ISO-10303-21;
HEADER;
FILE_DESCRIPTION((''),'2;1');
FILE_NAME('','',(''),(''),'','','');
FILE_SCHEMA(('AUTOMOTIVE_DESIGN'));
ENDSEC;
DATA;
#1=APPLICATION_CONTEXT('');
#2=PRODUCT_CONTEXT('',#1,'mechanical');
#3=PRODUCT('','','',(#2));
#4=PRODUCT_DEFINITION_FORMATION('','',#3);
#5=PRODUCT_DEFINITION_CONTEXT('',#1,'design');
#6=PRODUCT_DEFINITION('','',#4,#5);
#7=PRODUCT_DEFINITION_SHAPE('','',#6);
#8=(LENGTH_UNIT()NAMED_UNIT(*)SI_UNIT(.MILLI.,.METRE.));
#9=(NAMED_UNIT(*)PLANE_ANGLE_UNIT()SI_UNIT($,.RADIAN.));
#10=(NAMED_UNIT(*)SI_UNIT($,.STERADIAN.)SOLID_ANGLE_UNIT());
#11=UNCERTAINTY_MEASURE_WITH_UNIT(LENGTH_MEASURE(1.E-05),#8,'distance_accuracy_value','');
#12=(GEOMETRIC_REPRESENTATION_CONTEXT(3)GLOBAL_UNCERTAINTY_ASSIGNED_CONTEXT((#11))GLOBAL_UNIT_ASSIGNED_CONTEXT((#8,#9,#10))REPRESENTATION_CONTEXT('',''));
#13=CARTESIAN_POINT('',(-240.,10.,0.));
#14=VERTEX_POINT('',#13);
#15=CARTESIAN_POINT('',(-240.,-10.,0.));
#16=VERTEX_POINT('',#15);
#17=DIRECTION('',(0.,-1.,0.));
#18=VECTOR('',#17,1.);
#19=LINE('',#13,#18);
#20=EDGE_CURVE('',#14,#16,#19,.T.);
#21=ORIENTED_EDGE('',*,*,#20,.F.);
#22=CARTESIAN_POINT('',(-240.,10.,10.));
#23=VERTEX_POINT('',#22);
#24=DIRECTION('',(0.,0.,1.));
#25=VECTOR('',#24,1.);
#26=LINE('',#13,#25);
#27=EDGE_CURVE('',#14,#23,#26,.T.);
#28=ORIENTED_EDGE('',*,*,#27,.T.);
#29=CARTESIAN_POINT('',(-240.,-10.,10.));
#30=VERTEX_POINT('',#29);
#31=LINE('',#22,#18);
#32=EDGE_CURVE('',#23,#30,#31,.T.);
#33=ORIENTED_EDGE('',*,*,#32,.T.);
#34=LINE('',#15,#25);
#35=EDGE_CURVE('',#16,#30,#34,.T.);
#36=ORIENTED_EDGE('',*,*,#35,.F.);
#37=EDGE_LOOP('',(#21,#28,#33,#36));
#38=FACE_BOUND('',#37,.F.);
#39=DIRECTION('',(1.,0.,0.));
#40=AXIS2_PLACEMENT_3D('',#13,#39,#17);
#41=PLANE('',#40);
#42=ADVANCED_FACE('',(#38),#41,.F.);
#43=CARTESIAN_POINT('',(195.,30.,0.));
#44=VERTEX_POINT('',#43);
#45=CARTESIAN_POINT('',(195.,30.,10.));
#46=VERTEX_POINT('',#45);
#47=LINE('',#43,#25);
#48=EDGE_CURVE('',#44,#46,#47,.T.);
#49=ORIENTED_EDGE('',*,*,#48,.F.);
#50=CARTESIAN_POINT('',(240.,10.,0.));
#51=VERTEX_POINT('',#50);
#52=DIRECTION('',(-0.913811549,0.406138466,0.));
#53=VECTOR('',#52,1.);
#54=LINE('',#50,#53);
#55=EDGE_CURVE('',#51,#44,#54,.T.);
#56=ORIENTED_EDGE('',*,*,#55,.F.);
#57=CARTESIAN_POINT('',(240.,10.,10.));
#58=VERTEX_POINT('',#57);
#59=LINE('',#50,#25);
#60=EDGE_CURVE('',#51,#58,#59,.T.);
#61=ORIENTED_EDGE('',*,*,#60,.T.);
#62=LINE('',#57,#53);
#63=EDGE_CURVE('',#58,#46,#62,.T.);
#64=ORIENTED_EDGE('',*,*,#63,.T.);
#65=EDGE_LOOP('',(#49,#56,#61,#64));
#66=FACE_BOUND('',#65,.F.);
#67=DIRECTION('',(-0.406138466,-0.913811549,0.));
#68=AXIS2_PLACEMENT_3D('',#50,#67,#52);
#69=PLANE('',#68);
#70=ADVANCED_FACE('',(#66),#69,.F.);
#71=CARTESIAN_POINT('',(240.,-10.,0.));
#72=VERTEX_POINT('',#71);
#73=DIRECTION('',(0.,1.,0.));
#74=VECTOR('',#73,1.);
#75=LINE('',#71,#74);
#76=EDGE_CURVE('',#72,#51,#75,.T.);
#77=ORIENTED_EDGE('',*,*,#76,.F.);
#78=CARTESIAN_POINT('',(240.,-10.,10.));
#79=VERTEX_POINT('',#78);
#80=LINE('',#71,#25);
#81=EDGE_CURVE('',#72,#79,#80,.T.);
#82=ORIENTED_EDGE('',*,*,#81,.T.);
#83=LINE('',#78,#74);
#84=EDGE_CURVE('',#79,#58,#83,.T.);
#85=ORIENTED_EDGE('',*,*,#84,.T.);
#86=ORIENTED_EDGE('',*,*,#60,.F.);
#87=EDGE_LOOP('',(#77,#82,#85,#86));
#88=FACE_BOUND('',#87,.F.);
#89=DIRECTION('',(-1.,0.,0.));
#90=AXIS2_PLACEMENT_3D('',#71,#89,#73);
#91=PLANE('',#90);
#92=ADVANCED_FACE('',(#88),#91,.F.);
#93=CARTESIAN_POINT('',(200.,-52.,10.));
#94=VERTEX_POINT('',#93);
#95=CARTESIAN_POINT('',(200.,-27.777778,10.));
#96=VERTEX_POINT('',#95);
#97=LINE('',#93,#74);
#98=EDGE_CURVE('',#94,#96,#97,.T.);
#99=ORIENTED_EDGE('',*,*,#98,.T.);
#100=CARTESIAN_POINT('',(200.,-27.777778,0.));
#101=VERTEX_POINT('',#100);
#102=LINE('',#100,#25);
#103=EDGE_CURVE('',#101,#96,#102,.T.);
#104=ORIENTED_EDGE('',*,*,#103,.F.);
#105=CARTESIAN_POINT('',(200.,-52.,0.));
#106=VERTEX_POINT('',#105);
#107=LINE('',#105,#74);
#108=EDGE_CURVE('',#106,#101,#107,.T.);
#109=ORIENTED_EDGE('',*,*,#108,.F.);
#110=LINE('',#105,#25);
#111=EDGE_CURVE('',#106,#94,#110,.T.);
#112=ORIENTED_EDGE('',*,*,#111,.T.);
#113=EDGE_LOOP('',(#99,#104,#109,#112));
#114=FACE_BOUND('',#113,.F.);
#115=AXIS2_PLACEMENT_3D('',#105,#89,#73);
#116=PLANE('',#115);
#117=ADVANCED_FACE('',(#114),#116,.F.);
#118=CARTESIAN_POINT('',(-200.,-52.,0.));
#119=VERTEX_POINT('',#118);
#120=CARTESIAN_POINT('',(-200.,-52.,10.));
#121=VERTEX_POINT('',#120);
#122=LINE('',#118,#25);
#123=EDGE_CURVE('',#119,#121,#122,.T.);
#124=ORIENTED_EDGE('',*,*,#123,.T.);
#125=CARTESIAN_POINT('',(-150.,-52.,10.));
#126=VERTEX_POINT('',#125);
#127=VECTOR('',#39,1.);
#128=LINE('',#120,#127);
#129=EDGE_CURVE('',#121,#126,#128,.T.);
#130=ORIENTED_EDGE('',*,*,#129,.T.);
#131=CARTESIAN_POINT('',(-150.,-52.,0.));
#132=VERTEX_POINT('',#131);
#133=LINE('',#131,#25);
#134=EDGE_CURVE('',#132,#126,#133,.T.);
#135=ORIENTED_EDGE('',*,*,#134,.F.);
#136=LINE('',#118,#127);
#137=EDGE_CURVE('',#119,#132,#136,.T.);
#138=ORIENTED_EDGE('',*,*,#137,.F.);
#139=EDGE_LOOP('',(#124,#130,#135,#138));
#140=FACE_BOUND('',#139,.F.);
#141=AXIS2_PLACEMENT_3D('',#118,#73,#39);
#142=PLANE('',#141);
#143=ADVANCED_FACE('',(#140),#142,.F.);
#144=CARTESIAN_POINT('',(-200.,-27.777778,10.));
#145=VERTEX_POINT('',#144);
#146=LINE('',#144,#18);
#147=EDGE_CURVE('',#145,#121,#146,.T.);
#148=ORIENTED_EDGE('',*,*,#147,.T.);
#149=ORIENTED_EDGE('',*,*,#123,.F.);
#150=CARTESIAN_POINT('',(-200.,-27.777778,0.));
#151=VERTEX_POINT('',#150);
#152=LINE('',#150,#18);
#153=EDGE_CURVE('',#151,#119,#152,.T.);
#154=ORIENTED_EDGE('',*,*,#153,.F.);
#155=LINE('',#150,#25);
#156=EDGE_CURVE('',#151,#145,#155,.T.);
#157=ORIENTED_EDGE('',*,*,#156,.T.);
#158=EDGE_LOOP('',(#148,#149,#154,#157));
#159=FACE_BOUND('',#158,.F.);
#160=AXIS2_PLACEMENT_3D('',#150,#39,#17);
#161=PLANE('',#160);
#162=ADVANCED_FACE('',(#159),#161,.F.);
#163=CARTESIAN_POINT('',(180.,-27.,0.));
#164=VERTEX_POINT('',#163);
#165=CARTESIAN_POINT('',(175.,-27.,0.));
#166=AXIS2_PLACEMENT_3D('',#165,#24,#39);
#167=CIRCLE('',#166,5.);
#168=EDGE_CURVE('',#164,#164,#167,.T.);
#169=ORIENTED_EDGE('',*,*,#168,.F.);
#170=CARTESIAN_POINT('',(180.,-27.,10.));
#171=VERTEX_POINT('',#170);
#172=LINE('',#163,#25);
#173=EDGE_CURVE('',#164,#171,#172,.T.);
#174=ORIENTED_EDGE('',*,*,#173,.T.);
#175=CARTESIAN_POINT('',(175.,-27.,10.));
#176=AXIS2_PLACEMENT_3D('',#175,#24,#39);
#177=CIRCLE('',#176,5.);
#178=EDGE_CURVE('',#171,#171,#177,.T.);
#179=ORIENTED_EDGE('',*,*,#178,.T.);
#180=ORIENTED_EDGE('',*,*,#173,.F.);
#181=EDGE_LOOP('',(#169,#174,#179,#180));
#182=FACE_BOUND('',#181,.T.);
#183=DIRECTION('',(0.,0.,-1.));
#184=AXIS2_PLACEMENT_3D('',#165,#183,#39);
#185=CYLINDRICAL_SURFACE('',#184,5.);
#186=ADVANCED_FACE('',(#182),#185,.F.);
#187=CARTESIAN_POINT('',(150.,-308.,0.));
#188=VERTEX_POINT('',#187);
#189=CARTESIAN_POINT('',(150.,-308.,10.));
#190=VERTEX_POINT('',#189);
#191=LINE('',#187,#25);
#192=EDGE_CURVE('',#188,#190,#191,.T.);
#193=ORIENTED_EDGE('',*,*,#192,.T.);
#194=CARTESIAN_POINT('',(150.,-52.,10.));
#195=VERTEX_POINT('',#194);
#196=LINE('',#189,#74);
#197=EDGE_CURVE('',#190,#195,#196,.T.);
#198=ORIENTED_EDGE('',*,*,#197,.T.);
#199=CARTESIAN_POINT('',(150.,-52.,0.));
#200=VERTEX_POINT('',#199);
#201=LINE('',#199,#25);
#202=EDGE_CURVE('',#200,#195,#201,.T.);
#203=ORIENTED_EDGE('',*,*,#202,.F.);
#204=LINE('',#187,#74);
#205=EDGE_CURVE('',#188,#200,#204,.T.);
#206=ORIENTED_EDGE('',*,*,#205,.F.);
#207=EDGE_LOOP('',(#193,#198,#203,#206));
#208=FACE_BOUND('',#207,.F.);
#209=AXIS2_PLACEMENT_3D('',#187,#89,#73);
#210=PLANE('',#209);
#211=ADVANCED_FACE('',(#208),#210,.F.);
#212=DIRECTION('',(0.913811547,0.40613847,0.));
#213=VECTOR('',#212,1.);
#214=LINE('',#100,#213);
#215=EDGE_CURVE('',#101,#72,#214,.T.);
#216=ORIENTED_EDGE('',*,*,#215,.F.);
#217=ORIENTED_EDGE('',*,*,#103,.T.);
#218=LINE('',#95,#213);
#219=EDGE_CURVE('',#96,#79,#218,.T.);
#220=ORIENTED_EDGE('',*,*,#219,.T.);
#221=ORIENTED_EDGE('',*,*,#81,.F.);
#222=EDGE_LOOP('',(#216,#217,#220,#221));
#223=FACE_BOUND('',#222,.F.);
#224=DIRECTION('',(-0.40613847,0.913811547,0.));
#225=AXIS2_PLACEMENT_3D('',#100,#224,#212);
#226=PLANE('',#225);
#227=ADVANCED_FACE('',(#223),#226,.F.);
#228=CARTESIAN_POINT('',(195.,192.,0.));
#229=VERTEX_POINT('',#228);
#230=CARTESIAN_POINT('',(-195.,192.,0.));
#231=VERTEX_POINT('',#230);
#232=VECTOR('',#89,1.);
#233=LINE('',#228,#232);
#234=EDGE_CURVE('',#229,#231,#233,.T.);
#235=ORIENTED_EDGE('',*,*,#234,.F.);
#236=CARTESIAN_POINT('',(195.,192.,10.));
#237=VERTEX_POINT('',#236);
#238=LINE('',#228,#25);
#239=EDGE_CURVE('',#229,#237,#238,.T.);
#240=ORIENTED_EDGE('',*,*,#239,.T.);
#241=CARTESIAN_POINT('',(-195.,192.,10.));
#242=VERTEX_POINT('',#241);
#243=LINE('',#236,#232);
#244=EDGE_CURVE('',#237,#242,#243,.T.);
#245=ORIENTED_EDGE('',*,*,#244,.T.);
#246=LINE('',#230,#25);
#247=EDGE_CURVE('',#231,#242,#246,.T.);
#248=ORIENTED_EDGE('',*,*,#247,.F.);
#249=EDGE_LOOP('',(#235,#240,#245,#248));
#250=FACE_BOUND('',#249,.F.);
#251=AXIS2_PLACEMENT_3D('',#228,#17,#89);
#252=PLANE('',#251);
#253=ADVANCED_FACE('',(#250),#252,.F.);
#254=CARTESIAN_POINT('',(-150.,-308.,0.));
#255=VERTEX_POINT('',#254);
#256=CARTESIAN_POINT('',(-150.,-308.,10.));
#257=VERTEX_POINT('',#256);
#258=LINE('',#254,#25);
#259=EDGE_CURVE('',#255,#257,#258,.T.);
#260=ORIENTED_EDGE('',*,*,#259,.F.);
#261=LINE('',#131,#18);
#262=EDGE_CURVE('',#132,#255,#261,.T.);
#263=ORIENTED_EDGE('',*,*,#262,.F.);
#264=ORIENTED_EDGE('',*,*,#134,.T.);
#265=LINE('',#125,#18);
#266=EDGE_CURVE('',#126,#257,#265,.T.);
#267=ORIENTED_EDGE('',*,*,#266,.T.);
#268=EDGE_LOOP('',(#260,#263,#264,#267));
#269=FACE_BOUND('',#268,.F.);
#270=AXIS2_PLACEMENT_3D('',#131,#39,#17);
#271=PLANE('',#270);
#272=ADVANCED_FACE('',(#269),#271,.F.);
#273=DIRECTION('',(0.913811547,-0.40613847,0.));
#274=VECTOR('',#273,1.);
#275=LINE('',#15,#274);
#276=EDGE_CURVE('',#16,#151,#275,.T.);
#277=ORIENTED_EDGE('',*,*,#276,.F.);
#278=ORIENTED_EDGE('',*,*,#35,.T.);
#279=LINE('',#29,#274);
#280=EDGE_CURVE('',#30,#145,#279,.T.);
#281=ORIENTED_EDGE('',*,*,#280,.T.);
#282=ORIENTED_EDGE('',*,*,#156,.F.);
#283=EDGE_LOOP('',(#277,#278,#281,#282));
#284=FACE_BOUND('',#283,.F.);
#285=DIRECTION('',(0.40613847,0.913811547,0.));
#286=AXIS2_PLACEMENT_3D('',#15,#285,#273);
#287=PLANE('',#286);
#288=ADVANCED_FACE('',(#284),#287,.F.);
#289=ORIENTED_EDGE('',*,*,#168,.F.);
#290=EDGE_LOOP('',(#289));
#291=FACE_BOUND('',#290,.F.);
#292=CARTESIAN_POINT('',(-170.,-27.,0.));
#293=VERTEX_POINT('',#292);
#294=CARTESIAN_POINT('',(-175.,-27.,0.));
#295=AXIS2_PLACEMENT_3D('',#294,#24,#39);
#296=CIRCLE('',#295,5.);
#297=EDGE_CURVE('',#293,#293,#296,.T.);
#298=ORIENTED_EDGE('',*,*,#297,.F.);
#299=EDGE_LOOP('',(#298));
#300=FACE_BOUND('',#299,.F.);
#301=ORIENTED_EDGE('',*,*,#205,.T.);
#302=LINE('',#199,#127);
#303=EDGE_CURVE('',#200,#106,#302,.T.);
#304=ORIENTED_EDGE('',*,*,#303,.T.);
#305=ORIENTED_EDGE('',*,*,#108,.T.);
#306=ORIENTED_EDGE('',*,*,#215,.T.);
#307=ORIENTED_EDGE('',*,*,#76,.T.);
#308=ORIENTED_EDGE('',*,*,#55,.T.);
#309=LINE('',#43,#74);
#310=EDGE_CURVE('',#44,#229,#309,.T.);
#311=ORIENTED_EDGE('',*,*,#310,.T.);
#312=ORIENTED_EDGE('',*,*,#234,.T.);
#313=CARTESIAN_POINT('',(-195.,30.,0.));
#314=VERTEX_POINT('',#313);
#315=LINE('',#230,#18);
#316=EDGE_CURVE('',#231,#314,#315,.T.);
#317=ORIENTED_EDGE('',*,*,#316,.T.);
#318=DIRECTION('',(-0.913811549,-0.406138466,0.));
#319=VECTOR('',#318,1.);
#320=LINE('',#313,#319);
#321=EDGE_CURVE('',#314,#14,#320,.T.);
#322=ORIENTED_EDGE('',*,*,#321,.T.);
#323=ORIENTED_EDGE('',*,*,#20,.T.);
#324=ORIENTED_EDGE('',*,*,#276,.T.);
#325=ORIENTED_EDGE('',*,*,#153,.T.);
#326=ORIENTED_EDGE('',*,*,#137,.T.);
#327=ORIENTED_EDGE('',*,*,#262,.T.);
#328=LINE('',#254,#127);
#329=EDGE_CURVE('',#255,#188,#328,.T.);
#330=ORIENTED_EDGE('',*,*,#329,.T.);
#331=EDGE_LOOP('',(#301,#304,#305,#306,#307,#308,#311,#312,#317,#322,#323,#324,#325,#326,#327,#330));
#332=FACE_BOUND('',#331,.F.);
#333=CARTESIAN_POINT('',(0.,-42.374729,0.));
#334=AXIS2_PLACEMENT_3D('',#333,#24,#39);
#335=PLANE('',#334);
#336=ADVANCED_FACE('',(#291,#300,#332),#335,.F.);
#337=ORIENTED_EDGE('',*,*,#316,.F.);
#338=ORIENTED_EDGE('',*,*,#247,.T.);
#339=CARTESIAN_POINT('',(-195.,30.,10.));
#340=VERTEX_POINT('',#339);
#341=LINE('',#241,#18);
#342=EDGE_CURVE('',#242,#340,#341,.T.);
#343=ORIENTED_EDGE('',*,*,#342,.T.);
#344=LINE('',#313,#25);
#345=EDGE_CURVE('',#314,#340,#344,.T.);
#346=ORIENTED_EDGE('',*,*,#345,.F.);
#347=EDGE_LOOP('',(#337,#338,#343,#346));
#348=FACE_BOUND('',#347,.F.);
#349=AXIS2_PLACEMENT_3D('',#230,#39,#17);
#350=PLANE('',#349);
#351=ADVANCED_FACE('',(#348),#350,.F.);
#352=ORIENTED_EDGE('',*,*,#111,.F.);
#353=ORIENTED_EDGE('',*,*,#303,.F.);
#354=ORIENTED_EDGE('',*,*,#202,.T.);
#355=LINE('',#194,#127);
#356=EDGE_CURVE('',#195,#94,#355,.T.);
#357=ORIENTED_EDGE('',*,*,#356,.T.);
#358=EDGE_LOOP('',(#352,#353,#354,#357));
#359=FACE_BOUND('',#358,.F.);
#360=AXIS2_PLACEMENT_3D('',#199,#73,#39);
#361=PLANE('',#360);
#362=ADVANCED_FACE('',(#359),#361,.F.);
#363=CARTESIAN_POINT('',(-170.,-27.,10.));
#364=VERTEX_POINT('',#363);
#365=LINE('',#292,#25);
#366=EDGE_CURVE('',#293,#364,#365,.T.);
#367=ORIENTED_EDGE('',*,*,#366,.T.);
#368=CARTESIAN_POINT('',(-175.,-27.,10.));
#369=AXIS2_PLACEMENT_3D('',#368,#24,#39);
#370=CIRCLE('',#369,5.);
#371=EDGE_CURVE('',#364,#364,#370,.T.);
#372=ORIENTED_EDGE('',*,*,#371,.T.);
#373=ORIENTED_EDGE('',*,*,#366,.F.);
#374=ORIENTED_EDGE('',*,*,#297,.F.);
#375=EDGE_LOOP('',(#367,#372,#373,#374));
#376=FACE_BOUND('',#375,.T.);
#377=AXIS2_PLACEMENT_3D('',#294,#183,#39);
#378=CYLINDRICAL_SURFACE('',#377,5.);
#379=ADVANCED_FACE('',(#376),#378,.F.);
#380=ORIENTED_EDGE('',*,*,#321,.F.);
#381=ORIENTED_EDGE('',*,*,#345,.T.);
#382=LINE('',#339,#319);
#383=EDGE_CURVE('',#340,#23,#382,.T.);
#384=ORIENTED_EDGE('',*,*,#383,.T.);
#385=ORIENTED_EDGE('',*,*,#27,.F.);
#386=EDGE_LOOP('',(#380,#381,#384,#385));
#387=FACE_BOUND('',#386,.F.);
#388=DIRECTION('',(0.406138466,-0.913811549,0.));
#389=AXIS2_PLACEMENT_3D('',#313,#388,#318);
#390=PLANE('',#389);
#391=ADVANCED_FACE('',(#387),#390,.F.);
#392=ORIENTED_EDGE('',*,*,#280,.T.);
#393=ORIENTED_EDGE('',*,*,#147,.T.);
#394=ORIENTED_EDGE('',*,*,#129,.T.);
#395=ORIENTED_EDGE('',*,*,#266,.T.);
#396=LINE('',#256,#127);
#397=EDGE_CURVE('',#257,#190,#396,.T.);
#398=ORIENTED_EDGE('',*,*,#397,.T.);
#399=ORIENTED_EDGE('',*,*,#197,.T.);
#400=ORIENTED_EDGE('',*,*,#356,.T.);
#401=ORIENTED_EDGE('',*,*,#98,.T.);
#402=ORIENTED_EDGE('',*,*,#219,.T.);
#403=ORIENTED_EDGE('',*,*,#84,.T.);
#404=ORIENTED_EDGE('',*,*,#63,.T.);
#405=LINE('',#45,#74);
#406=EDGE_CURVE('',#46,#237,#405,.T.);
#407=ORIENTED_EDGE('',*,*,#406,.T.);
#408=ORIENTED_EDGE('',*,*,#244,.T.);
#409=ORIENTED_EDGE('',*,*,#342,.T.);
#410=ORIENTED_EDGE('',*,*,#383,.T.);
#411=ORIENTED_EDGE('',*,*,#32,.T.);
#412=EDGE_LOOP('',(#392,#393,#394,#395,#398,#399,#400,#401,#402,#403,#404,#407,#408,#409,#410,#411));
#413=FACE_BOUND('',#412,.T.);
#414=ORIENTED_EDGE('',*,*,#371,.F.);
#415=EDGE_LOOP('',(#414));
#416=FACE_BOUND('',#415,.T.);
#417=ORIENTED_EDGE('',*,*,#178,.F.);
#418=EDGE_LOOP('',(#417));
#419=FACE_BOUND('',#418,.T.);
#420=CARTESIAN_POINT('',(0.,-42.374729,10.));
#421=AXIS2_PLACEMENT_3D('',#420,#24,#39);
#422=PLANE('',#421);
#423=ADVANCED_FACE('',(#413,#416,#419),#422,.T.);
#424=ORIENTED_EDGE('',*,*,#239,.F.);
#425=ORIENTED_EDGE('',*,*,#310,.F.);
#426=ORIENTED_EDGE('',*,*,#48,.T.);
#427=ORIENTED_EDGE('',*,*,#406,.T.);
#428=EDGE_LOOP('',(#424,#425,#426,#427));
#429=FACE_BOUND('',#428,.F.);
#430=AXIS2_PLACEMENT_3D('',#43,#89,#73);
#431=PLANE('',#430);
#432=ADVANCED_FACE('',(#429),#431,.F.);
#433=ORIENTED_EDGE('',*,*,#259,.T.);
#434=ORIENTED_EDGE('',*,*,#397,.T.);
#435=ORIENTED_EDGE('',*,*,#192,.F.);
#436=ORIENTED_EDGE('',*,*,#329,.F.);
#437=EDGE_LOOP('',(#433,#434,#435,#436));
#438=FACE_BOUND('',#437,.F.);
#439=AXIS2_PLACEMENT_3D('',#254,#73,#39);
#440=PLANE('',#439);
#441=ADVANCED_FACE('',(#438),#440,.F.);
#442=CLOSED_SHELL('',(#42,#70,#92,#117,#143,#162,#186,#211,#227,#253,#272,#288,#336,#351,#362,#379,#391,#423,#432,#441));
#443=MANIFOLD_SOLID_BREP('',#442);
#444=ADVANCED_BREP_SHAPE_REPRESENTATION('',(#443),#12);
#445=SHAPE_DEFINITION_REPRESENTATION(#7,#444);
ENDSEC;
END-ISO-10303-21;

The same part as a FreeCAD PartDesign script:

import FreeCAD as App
import Part
import Sketcher

V = App.Vector


def add_polygon(sketch, points):
    """Adds a closed chain of lines whose ends are joined by coincident constraints."""
    first, n = sketch.GeometryCount, len(points)
    for a, b in zip(points, points[1:] + points[:1]):
        sketch.addGeometry(Part.LineSegment(App.Vector(*a, 0), App.Vector(*b, 0)), False)
    for i in range(n):
        sketch.addConstraint(Sketcher.Constraint("Coincident", first + i, 2, first + (i + 1) % n, 1))

doc = App.newDocument("Part")
body = doc.addObject("PartDesign::Body", "Body")

# Sketch on XY plane
sketch1 = body.newObject("Sketcher::SketchObject", "Sketch")
sketch1.AttachmentSupport = (doc.getObject("XY_Plane"), [""])
sketch1.MapMode = "FlatFace"
add_polygon(sketch1, [(-195, 30), (-240, 10), (-240, -10), (-200, -27.777778), (-200, -52), (-150, -52), (-150, -308), (150, -308), (150, -52), (200, -52), (200, -27.777778), (240, -10), (240, 10), (195, 30), (195, 192), (-195, 192)])  # lines 0-15
sketch1.addGeometry(Part.Circle(V(-175, -27, 0), V(0, 0, 1), 5), False)  # 16
sketch1.addGeometry(Part.Circle(V(175, -27, 0), V(0, 0, 1), 5), False)  # 17
sketch1.addConstraint([
    Sketcher.Constraint("Vertical", 1),
    Sketcher.Constraint("Vertical", 3),
    Sketcher.Constraint("Horizontal", 4),
    Sketcher.Constraint("Vertical", 5),
    Sketcher.Constraint("Horizontal", 6),
    Sketcher.Constraint("Vertical", 7),
    Sketcher.Constraint("Horizontal", 8),
    Sketcher.Constraint("Vertical", 9),
    Sketcher.Constraint("Vertical", 11),
    Sketcher.Constraint("Vertical", 13),
    Sketcher.Constraint("Horizontal", 14),
    Sketcher.Constraint("Vertical", 15),
    Sketcher.Constraint("Equal", 16, 17),
    Sketcher.Constraint("Symmetric", 0, 2, 10, 2, -1, 1),
    Sketcher.Constraint("Symmetric", 16, 3, 17, 3, -2),
    Sketcher.Constraint("Symmetric", 4, 2, 7, 2, -2),
    Sketcher.Constraint("Symmetric", 2, 2, 9, 2, -2),
    Sketcher.Constraint("Symmetric", 12, 2, 15, 2, -2),
    Sketcher.Constraint("Parallel", 0, 10),
    Sketcher.Constraint("Parallel", 2, 12),
    Sketcher.Constraint("Horizontal", 1, 2, 10, 2),
    Sketcher.Constraint("Diameter", 16, 10.0),
    Sketcher.Constraint("DistanceX", 4, 1, 4, 2, 50.0),
    Sketcher.Constraint("DistanceX", 6, 1, 6, 2, 300.0),
    Sketcher.Constraint("DistanceX", 14, 2, 14, 1, 390.0),
    Sketcher.Constraint("DistanceY", 1, 2, 1, 1, 20.0),
    Sketcher.Constraint("DistanceY", 5, 2, 5, 1, 256.0),
    Sketcher.Constraint("DistanceY", 13, 1, 13, 2, 162.0),
    Sketcher.Constraint("DistanceX", 16, 3, -1, 1, 175.0),
    Sketcher.Constraint("DistanceY", 16, 3, -1, 1, 27.0),
    Sketcher.Constraint("DistanceX", 0, 2, -1, 1, 240.0),
    Sketcher.Constraint("DistanceY", 3, 2, -1, 1, 52.0),
    Sketcher.Constraint("DistanceY", -1, 1, 12, 2, 30.0),
])
pad1 = body.newObject("PartDesign::Pad", "Pad")
pad1.Profile = sketch1
pad1.Length = 10

doc.recompute()
